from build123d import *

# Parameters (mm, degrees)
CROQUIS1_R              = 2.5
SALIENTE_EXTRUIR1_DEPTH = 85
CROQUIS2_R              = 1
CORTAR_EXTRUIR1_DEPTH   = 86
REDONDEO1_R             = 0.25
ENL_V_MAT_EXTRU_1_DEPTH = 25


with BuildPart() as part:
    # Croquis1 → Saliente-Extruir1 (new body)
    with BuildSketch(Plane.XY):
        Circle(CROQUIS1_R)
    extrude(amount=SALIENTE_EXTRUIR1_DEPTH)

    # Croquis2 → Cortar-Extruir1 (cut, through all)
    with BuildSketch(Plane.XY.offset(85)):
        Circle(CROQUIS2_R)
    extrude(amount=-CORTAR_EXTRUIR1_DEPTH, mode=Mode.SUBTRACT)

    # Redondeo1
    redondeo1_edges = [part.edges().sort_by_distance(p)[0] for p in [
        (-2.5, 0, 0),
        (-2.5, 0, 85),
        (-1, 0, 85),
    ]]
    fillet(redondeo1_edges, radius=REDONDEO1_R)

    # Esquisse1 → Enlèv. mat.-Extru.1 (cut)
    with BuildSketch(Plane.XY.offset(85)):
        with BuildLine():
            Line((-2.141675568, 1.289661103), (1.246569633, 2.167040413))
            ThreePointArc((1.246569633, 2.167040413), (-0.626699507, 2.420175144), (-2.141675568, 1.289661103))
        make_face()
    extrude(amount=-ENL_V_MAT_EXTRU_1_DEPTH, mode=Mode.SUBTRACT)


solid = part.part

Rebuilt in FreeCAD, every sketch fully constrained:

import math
import FreeCAD as App
import Part
import Sketcher

V = App.Vector
Q = App.Units.Quantity


def edges_at(feature, points):
    """Names of the edges that pass closest to the given points."""
    edges = feature.Shape.Edges
    near = lambda p: min(range(len(edges)), key=lambda i: edges[i].distToShape(Part.Vertex(*p))[0])
    return sorted({f"Edge{near(p) + 1}" for p in points})

doc = App.newDocument("Part")
params = doc.addObject("Spreadsheet::Sheet", "Params")
for row, (alias, value) in enumerate([
    ("sketch1_diameter", "5 mm"),
    ("pad1_length", "85 mm"),
    ("sketch2_diameter", "2 mm"),
    ("fillet_radius", "0.25 mm"),
    ("sketch3_radius", "2.5 mm"),
    ("sketch3_length", "3.5 mm"),
    ("pocket2_length", "25 mm"),
], start=1):
    params.set(f"A{row}", alias)
    params.set(f"B{row}", "=" + value)
    params.setAlias(f"B{row}", alias)

body = doc.addObject("PartDesign::Body", "Body")

sketch1 = body.newObject("Sketcher::SketchObject", "Sketch")
sketch1.AttachmentSupport = (doc.getObject("XY_Plane"), [""])
sketch1.MapMode = "FlatFace"
sketch1.addGeometry(Part.Circle(V(0, 0, 0), V(0, 0, 1), 2.5), False)
sketch1.addConstraint([
    Sketcher.Constraint("Coincident", 0, 3, -1, 1),
    Sketcher.Constraint("Diameter", 0, Q("5 mm")),
])
sketch1.setExpression("Constraints[1]", "Params.sketch1_diameter")
pad1 = body.newObject("PartDesign::Pad", "Pad")
pad1.Profile = sketch1
pad1.setExpression("Length", "Params.pad1_length")

sketch2 = body.newObject("Sketcher::SketchObject", "Sketch001")
sketch2.AttachmentSupport = (doc.getObject("XY_Plane"), [""])
sketch2.MapMode = "FlatFace"
sketch2.AttachmentOffset = App.Placement(V(0, 0, 85), App.Rotation())
sketch2.addGeometry(Part.Circle(V(0, 0, 0), V(0, 0, 1), 1), False)
sketch2.addConstraint([
    Sketcher.Constraint("Coincident", 0, 3, -1, 1),
    Sketcher.Constraint("Diameter", 0, Q("2 mm")),
])
sketch2.setExpression("Constraints[1]", "Params.sketch2_diameter")
pocket1 = body.newObject("PartDesign::Pocket", "Pocket")
pocket1.Profile = sketch2
pocket1.Type = "ThroughAll"
doc.recompute()

fillet = body.newObject("PartDesign::Fillet", "Fillet")
fillet.Base = (pocket1, edges_at(pocket1, [(-2.5, 0, 0), (-2.5, 0, 85), (-1, 0, 85)]))
fillet.setExpression("Radius", "Params.fillet_radius")

sketch3 = body.newObject("Sketcher::SketchObject", "Sketch002")
sketch3.AttachmentSupport = (doc.getObject("XY_Plane"), [""])
sketch3.MapMode = "FlatFace"
sketch3.AttachmentOffset = App.Placement(V(0, 0, 85), App.Rotation())
sketch3.addGeometry([
    Part.LineSegment(V(-2.1, 1.3, 0), V(1.2, 2.2, 0)),
    Part.ArcOfCircle(Part.Circle(V(0, 0, 0), V(0, 0, 1), 2.5), math.radians(60), math.radians(149)),
], False)
sketch3.addConstraint([
    Sketcher.Constraint("Coincident", 0, 1, 1, 2),
    Sketcher.Constraint("Coincident", 1, 1, 0, 2),
    Sketcher.Constraint("Coincident", 1, 3, -1, 1),
    Sketcher.Constraint("Radius", 1, Q("2.5 mm")),
    Sketcher.Constraint("Distance", 0, Q("3.5 mm")),
    Sketcher.Constraint("DistanceY", -1, 1, 0, 1, Q("1.289661 mm")),
])
sketch3.setExpression("Constraints[3]", "Params.sketch3_radius")
sketch3.setExpression("Constraints[4]", "Params.sketch3_length")
pocket2 = body.newObject("PartDesign::Pocket", "Pocket001")
pocket2.Profile = sketch3
pocket2.setExpression("Length", "Params.pocket2_length")

doc.recompute()
